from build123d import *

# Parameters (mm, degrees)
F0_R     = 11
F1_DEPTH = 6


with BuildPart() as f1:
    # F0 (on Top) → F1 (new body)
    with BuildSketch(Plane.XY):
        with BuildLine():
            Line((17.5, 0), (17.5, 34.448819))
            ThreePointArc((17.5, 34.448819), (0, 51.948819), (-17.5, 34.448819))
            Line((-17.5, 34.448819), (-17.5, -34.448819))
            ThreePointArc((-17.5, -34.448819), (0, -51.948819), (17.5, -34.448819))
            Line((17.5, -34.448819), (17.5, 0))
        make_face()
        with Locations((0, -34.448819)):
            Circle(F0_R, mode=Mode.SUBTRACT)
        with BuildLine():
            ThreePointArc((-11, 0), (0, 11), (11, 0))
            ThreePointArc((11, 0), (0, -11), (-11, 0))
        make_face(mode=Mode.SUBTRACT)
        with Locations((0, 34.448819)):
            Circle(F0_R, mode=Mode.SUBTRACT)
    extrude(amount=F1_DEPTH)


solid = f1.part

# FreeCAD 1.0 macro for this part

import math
import FreeCAD as App
import Part
import Sketcher

doc = App.newDocument("Part")
body = doc.addObject("PartDesign::Body", "Body")

# Sketch on XY plane
sketch1 = body.newObject("Sketcher::SketchObject", "Sketch")
sketch1.AttachmentSupport = (doc.getObject("XY_Plane"), [""])
sketch1.MapMode = "FlatFace"
sketch1.addGeometry(Part.ArcOfCircle(Part.Circle(App.Vector(0, 34, 0), App.Vector(0, 0, 1), 18), math.radians(0), math.radians(180)), False)
sketch1.addGeometry(Part.LineSegment(App.Vector(-18, 34, 0), App.Vector(-18, -34, 0)), False)
sketch1.addGeometry(Part.ArcOfCircle(Part.Circle(App.Vector(0, -34, 0), App.Vector(0, 0, 1), 18), math.radians(180), math.radians(360)), False)
sketch1.addGeometry(Part.LineSegment(App.Vector(18, -34, 0), App.Vector(18, 34, 0)), False)
sketch1.addGeometry(Part.Circle(App.Vector(0, -34, 0), App.Vector(0, 0, 1), 11), False)
sketch1.addGeometry(Part.Circle(App.Vector(0, 0, 0), App.Vector(0, 0, 1), 11), False)
sketch1.addGeometry(Part.Circle(App.Vector(0, 34, 0), App.Vector(0, 0, 1), 11), False)
sketch1.addConstraint(Sketcher.Constraint("Tangent", 0, 2, 1, 1))
sketch1.addConstraint(Sketcher.Constraint("Tangent", 1, 2, 2, 1))
sketch1.addConstraint(Sketcher.Constraint("Tangent", 2, 2, 3, 1))
sketch1.addConstraint(Sketcher.Constraint("Tangent", 3, 2, 0, 1))
sketch1.addConstraint(Sketcher.Constraint("Vertical", 1))
sketch1.addConstraint(Sketcher.Constraint("Vertical", 3))
sketch1.addConstraint(Sketcher.Constraint("Coincident", 5, 3, -1, 1))
sketch1.addConstraint(Sketcher.Constraint("Coincident", 4, 3, 2, 3))
sketch1.addConstraint(Sketcher.Constraint("Coincident", 6, 3, 0, 3))
sketch1.addConstraint(Sketcher.Constraint("Equal", 4, 5))
sketch1.addConstraint(Sketcher.Constraint("Equal", 5, 6))
sketch1.addConstraint(Sketcher.Constraint("Symmetric", 0, 3, 2, 3, -1, 1))
sketch1.addConstraint(Sketcher.Constraint("Diameter", 4, 22.0))
sketch1.addConstraint(Sketcher.Constraint("Radius", 0, 17.5))
sketch1.addConstraint(Sketcher.Constraint("DistanceY", 1, 2, 1, 1, 68.897638))
pad1 = body.newObject("PartDesign::Pad", "Pad")
pad1.Profile = sketch1
pad1.Length = 6

doc.recompute()
